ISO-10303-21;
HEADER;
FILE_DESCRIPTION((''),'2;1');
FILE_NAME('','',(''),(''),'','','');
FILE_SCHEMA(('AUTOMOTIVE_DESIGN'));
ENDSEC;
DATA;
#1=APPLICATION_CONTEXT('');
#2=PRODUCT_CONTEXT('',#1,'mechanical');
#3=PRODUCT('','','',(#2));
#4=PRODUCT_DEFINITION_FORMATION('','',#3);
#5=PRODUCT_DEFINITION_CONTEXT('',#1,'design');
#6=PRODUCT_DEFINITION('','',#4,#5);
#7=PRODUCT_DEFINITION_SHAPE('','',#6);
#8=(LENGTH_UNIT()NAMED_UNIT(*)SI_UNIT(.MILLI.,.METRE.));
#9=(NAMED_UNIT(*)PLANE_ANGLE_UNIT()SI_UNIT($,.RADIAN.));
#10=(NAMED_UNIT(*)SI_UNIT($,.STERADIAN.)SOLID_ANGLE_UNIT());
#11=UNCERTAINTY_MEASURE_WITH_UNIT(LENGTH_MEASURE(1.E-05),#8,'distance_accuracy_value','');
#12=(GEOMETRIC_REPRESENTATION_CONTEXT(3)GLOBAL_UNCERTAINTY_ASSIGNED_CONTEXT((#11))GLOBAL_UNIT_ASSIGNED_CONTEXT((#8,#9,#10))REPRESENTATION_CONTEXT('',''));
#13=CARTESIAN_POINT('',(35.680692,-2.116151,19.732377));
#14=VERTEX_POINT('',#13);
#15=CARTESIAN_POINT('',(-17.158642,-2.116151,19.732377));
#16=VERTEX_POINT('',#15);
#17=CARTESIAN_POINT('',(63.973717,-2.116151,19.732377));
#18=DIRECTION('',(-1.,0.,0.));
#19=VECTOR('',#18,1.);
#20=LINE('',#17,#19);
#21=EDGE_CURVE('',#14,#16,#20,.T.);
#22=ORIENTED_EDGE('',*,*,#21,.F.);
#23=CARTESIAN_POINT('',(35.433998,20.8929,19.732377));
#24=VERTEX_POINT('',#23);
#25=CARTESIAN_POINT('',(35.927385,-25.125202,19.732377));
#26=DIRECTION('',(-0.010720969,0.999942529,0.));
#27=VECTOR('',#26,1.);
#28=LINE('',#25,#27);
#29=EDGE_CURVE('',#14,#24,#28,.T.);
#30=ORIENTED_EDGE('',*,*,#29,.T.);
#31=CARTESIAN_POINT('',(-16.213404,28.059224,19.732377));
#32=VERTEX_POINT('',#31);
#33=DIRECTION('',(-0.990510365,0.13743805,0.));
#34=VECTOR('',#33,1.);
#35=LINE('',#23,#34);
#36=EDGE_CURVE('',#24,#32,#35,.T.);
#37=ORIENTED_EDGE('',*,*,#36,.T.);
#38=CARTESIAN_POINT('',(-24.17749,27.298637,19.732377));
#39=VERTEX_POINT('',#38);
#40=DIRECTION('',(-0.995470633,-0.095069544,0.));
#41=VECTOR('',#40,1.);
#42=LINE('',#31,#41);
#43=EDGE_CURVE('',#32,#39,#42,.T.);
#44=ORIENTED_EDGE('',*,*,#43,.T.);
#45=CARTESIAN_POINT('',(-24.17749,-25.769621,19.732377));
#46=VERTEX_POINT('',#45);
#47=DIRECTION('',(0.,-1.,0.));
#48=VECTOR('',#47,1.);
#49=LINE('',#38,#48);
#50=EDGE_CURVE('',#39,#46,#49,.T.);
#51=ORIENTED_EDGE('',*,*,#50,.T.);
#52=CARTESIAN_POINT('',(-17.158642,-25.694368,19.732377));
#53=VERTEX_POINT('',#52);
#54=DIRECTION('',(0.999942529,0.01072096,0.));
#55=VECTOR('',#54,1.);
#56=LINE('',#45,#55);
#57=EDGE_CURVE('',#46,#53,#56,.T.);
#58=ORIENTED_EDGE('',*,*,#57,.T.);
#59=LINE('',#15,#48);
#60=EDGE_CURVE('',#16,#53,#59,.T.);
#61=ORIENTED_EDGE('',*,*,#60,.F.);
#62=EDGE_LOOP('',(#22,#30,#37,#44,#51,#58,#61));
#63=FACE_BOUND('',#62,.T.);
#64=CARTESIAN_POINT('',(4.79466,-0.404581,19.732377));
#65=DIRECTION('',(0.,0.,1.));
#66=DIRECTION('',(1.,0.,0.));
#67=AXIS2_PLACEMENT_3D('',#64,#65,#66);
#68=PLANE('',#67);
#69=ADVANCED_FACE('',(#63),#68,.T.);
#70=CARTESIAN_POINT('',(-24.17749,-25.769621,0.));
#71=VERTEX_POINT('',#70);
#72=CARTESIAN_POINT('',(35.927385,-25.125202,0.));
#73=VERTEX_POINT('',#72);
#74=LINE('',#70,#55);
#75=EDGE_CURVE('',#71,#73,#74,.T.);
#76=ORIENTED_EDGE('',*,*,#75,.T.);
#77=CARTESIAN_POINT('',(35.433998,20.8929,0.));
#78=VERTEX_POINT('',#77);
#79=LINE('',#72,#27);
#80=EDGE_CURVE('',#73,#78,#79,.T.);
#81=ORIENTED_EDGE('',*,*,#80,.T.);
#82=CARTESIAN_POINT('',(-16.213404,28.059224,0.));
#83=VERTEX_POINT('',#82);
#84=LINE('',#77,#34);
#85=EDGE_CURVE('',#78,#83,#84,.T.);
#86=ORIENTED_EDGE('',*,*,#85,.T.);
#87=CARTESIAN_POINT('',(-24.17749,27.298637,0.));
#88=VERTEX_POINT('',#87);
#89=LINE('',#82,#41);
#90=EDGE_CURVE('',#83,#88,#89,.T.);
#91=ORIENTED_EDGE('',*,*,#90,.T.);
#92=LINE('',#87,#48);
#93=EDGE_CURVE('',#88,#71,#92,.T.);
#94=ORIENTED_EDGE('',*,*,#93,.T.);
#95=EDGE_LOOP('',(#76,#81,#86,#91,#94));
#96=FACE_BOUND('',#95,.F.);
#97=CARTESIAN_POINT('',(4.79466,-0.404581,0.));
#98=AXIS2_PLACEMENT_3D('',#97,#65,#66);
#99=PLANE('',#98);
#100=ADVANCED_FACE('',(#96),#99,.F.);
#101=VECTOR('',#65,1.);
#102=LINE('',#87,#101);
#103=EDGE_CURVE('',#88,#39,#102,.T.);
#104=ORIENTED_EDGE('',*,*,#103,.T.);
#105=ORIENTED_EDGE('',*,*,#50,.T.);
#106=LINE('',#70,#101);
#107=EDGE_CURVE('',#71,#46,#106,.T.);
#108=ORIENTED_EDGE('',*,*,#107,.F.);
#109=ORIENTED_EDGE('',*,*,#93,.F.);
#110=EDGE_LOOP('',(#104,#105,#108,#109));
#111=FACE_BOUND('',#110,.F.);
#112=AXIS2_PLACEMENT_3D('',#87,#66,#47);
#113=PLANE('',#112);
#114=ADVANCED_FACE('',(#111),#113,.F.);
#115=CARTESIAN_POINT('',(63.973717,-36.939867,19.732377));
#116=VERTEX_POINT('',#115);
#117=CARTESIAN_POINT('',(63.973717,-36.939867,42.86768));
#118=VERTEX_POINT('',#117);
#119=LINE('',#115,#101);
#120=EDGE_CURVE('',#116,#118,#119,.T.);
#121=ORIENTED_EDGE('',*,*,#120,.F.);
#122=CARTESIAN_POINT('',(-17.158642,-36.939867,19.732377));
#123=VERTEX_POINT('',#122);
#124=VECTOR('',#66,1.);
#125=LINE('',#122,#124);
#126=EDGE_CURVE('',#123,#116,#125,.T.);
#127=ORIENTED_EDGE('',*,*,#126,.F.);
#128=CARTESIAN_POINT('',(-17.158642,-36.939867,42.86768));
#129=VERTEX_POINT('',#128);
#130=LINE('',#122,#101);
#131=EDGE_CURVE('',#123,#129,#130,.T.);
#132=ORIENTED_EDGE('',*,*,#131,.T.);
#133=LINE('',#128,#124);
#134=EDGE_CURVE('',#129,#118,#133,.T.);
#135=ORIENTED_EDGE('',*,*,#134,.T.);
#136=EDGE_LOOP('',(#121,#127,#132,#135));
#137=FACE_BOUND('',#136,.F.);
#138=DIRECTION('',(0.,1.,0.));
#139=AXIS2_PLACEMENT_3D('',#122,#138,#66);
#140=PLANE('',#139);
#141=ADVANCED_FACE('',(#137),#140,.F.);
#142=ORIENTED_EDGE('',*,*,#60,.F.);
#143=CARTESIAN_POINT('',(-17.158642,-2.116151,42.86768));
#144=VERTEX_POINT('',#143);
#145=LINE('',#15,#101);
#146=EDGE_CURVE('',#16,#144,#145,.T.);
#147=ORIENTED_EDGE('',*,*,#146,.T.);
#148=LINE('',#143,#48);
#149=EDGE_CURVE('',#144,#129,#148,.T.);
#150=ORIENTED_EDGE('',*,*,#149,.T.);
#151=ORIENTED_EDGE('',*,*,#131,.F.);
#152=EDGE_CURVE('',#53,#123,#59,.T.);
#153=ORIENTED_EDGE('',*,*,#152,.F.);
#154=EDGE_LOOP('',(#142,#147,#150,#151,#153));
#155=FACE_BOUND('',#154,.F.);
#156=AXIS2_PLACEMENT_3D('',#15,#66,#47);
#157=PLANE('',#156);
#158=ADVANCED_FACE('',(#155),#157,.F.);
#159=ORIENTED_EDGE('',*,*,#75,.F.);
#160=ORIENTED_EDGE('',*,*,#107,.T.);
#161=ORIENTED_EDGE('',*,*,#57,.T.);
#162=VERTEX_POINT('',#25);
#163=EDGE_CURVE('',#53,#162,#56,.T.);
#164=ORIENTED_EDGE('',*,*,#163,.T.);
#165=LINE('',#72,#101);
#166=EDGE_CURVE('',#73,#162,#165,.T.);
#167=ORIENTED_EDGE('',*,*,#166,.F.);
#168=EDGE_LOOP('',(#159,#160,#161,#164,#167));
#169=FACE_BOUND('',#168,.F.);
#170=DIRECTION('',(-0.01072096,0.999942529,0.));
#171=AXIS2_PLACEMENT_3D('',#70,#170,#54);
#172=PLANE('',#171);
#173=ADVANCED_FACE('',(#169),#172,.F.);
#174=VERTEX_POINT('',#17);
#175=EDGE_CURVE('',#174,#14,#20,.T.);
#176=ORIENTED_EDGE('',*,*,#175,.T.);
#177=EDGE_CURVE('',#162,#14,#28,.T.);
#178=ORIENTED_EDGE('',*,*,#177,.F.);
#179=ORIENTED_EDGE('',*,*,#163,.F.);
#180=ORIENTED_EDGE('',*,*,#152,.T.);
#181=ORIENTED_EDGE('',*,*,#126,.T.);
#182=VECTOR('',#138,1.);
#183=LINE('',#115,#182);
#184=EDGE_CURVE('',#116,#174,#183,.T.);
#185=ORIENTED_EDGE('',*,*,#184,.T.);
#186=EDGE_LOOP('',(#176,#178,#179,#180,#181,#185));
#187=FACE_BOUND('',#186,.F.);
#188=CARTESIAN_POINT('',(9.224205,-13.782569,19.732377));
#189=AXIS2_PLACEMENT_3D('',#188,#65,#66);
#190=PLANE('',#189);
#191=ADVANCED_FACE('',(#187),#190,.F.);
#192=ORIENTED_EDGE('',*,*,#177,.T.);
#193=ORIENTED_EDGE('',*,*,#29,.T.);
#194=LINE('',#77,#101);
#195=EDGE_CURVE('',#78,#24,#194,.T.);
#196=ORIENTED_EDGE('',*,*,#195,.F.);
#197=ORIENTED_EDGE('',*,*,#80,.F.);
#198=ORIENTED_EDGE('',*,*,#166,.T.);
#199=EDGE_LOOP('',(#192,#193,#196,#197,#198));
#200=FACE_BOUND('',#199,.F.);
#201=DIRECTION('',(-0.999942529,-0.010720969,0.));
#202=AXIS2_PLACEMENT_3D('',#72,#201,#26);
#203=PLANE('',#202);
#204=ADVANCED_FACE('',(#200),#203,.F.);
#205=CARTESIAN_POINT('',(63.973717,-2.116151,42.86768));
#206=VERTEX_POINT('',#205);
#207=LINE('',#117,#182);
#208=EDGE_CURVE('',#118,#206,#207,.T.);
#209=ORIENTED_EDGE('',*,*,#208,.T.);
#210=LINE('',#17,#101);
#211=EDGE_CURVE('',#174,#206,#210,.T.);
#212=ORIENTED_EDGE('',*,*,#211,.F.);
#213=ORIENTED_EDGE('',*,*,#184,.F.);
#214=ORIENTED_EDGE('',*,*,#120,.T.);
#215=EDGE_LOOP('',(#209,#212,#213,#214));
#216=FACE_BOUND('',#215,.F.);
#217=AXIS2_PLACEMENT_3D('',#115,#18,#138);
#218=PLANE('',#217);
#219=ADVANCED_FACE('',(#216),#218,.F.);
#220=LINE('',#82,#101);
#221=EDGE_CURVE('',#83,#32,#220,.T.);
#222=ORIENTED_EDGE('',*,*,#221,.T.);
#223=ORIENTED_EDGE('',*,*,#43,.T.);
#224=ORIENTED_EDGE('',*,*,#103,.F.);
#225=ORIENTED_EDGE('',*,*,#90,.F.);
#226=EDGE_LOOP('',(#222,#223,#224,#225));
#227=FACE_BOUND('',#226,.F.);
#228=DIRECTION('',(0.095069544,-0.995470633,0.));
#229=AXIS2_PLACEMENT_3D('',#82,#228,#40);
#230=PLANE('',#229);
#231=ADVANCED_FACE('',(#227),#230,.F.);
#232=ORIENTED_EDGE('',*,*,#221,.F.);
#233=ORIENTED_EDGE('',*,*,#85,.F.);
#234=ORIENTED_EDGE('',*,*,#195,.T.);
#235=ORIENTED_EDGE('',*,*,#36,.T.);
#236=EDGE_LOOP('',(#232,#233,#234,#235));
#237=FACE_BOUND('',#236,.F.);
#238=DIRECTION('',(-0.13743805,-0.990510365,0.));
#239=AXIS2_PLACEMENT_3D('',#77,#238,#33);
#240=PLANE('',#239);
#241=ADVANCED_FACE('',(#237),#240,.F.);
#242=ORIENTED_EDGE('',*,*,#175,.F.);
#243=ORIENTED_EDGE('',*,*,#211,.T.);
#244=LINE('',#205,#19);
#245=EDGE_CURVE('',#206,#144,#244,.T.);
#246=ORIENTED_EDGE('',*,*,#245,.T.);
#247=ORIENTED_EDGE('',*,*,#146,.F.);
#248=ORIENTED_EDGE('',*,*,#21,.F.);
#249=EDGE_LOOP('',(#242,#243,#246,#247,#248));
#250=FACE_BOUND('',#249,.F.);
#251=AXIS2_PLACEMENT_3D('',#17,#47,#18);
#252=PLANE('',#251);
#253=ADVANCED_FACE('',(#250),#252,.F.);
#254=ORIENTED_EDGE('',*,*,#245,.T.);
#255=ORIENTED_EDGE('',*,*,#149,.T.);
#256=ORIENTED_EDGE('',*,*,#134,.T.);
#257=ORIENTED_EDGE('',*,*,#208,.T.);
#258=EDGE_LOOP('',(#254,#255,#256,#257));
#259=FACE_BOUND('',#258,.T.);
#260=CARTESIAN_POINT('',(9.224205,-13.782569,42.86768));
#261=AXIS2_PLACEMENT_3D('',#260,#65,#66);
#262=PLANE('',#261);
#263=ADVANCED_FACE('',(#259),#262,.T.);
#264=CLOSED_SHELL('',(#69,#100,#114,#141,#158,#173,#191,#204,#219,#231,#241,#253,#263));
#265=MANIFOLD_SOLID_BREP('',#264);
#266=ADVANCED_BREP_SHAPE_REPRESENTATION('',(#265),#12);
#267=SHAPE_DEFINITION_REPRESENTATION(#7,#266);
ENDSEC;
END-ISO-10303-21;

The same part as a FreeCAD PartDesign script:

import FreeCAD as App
import Part
import Sketcher

V = App.Vector


def add_polygon(sketch, points):
    """Adds a closed chain of lines whose ends are joined by coincident constraints."""
    first, n = sketch.GeometryCount, len(points)
    for a, b in zip(points, points[1:] + points[:1]):
        sketch.addGeometry(Part.LineSegment(App.Vector(*a, 0), App.Vector(*b, 0)), False)
    for i in range(n):
        sketch.addConstraint(Sketcher.Constraint("Coincident", first + i, 2, first + (i + 1) % n, 1))

doc = App.newDocument("Part")
params = doc.addObject("Spreadsheet::Sheet", "Params")
for row, (alias, value) in enumerate([
    ("pad1_length", "19.732377 mm"),
    ("pad2_length", "23.135303 mm"),
], start=1):
    params.set(f"A{row}", alias)
    params.set(f"B{row}", "=" + value)
    params.setAlias(f"B{row}", alias)

body = doc.addObject("PartDesign::Body", "Body")

# Sketch on XY plane
sketch1 = body.newObject("Sketcher::SketchObject", "Sketch")
sketch1.AttachmentSupport = (doc.getObject("XY_Plane"), [""])
sketch1.MapMode = "FlatFace"
add_polygon(sketch1, [(-16, 28), (-24, 27), (-24, -26), (36, -25), (35, 21)])  # lines 0-4
sketch1.addConstraint([
    Sketcher.Constraint("Vertical", 1),
    Sketcher.Constraint("Perpendicular", 2, 3),
    Sketcher.Constraint("DistanceX", -1, 1, 3, 2, 35.433998),
    Sketcher.Constraint("DistanceY", -1, 1, 3, 2, 20.8929),
    Sketcher.Constraint("Distance", 2, 60.108329),
    Sketcher.Constraint("DistanceY", 1, 2, 1, 1, 53.068258),
    Sketcher.Constraint("DistanceX", 0, 2, -1, 1, 24.17749),
    Sketcher.Constraint("DistanceY", 1, 2, -1, 1, 25.769621),
    Sketcher.Constraint("DistanceX", 4, 2, 2, 2, 52.140789),
    Sketcher.Constraint("Distance", 0, 8.000322),
])
pad1 = body.newObject("PartDesign::Pad", "Pad")
pad1.Profile = sketch1
pad1.setExpression("Length", "Params.pad1_length")

# Sketch on XY plane
sketch2 = body.newObject("Sketcher::SketchObject", "Sketch001")
sketch2.AttachmentSupport = (doc.getObject("XY_Plane"), [""])
sketch2.MapMode = "FlatFace"
sketch2.AttachmentOffset = App.Placement(V(0, 0, 19.732377), App.Rotation())
add_polygon(sketch2, [(-17, -2), (-17, -37), (64, -37), (64, -2)])  # lines 0-3
sketch2.addConstraint([
    Sketcher.Constraint("Vertical", 0),
    Sketcher.Constraint("Horizontal", 1),
    Sketcher.Constraint("Vertical", 2),
    Sketcher.Constraint("Horizontal", 3),
    Sketcher.Constraint("DistanceX", 1, 1, 1, 2, 81.132359),
    Sketcher.Constraint("DistanceY", 0, 2, 0, 1, 34.823716),
    Sketcher.Constraint("DistanceY", 2, 2, -1, 1, 2.116151),
    Sketcher.Constraint("DistanceX", 0, 2, -1, 1, 17.158642),
])
pad2 = body.newObject("PartDesign::Pad", "Pad001")
pad2.Profile = sketch2
pad2.setExpression("Length", "Params.pad2_length")

doc.recompute()
